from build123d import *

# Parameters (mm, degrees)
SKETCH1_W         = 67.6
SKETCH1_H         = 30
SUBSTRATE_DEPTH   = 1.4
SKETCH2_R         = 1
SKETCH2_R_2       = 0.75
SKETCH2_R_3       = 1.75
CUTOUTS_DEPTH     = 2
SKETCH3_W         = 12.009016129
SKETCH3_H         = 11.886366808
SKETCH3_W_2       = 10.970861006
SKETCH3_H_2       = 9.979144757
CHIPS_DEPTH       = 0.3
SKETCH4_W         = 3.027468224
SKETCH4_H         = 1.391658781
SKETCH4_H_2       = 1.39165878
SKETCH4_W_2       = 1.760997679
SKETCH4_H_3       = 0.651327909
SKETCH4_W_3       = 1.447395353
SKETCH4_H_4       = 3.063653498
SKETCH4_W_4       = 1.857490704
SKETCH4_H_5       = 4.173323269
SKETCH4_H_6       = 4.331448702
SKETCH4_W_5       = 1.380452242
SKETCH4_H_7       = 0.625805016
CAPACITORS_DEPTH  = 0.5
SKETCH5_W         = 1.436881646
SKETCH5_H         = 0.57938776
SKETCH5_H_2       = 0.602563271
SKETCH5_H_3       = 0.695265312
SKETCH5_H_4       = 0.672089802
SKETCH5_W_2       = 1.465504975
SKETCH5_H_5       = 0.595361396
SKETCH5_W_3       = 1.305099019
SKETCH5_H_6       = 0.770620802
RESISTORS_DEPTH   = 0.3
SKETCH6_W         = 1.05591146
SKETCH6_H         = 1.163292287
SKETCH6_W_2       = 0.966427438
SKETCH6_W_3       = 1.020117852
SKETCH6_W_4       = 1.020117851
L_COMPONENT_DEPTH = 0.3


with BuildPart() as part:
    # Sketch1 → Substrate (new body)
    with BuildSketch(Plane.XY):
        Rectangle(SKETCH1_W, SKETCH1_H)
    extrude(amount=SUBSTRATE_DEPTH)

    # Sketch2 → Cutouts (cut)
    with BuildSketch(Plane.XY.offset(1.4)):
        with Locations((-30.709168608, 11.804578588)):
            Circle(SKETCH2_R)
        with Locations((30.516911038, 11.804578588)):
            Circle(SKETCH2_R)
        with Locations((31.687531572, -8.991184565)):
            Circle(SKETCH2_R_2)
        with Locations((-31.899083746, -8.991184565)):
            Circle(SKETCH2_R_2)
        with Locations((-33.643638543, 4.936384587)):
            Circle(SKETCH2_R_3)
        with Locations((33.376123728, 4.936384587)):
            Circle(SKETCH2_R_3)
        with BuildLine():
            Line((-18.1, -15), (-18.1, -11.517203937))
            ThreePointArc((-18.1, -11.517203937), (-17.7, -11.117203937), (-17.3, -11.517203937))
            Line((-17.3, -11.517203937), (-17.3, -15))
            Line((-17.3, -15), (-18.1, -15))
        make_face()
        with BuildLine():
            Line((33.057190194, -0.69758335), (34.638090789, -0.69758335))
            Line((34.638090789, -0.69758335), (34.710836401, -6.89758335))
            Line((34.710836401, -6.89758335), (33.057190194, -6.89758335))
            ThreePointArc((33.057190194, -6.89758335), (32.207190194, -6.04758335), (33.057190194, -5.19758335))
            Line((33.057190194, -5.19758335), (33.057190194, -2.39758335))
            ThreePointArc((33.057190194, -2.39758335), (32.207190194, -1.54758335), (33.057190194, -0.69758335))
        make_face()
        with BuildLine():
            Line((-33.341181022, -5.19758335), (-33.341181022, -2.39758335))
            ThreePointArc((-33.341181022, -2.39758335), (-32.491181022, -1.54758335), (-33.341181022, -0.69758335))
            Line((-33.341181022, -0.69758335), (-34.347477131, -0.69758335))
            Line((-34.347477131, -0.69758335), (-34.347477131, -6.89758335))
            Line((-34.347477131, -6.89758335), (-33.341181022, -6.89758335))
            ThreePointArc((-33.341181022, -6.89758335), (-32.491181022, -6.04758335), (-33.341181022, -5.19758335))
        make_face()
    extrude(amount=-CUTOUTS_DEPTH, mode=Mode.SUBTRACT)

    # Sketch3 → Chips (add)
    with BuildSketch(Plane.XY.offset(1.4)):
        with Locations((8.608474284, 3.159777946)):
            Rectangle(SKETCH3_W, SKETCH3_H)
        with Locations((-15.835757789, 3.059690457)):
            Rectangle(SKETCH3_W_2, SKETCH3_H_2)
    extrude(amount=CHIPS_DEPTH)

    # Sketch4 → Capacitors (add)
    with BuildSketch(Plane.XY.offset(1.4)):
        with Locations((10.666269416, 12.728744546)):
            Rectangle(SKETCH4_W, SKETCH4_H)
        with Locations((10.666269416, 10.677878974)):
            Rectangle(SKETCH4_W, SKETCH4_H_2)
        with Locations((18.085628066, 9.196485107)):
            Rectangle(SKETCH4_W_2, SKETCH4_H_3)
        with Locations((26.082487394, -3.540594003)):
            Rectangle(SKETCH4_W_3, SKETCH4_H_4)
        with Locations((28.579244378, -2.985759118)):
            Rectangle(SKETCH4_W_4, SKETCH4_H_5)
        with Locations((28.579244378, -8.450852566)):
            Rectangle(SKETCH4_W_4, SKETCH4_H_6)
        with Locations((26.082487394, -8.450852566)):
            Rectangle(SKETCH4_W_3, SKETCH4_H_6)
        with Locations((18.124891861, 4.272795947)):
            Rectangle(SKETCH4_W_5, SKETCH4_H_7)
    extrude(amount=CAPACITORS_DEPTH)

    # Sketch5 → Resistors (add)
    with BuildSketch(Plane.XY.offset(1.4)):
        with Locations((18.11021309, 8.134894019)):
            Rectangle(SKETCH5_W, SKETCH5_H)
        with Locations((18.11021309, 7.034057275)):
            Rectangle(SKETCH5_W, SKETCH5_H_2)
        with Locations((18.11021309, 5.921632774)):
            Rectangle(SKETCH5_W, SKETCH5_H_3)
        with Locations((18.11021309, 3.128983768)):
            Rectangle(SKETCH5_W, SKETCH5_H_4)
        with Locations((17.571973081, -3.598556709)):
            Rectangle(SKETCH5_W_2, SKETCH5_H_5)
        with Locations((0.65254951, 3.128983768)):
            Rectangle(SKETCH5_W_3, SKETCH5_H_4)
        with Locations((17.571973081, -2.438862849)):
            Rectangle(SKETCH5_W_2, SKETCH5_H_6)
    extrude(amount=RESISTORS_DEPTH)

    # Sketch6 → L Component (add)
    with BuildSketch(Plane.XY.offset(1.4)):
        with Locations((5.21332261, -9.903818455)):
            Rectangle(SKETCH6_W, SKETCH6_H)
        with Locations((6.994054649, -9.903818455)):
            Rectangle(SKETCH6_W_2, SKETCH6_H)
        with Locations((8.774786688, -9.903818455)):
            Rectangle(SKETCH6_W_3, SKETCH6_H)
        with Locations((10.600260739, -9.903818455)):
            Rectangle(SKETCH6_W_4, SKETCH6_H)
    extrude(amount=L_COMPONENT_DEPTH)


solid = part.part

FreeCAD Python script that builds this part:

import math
import FreeCAD as App
import Part
import Sketcher
from FreeCAD import Vector
Q = App.Units.Quantity

doc = App.newDocument("Part")
body = doc.addObject("PartDesign::Body", "Body")

sketch1 = body.newObject("Sketcher::SketchObject", "Sketch")
sketch1.AttachmentSupport = (doc.getObject("XY_Plane"), [""])
sketch1.MapMode = "FlatFace"
sketch1.addGeometry([
    Part.LineSegment(Vector(-34, 15, 0), Vector(-34, -15, 0)),
    Part.LineSegment(Vector(-34, -15, 0), Vector(34, -15, 0)),
    Part.LineSegment(Vector(34, -15, 0), Vector(34, 15, 0)),
    Part.LineSegment(Vector(34, 15, 0), Vector(-34, 15, 0)),
], False)
sketch1.addConstraint([
    Sketcher.Constraint("Coincident", 0, 2, 1, 1),
    Sketcher.Constraint("Coincident", 1, 2, 2, 1),
    Sketcher.Constraint("Coincident", 2, 2, 3, 1),
    Sketcher.Constraint("Coincident", 3, 2, 0, 1),
    Sketcher.Constraint("Vertical", 0),
    Sketcher.Constraint("Horizontal", 1),
    Sketcher.Constraint("Vertical", 2),
    Sketcher.Constraint("Horizontal", 3),
    Sketcher.Constraint("Symmetric", 0, 2, 2, 2, -1, 1),
    Sketcher.Constraint("DistanceY", 0, 2, 0, 1, Q("30 mm")),
    Sketcher.Constraint("DistanceX", 1, 1, 1, 2, Q("67.6 mm")),
])
pad1 = body.newObject("PartDesign::Pad", "Pad")
pad1.Profile = sketch1
pad1.Length = 1.4

sketch2 = body.newObject("Sketcher::SketchObject", "Sketch001")
sketch2.AttachmentSupport = (doc.getObject("XY_Plane"), [""])
sketch2.MapMode = "FlatFace"
sketch2.AttachmentOffset = App.Placement(Vector(0, 0, 1.4), App.Rotation())
sketch2.addGeometry([
    Part.Circle(Vector(-30.71, 11.8, 0), Vector(0, 0, 1), 1),
    Part.Circle(Vector(30.52, 11.8, 0), Vector(0, 0, 1), 1),
    Part.Circle(Vector(31.69, -8.99, 0), Vector(0, 0, 1), 0.75),
    Part.Circle(Vector(-31.9, -8.99, 0), Vector(0, 0, 1), 0.75),
    Part.Circle(Vector(-33.64, 4.94, 0), Vector(0, 0, 1), 1.75),
    Part.Circle(Vector(33.38, 4.94, 0), Vector(0, 0, 1), 1.75),
    Part.LineSegment(Vector(-18.1, -11.52, 0), Vector(-18.1, -15, 0)),
    Part.LineSegment(Vector(-18.1, -15, 0), Vector(-17.3, -15, 0)),
    Part.LineSegment(Vector(-17.3, -15, 0), Vector(-17.3, -11.52, 0)),
    Part.ArcOfCircle(Part.Circle(Vector(-17.7, -11.52, 0), Vector(0, 0, 1), 0.4), math.radians(0), math.radians(180)),
    Part.LineSegment(Vector(34.64, -0.7, 0), Vector(33.06, -0.7, 0)),
    Part.ArcOfCircle(Part.Circle(Vector(33.06, -1.55, 0), Vector(0, 0, 1), 0.85), math.radians(90), math.radians(270)),
    Part.LineSegment(Vector(33.06, -2.4, 0), Vector(33.06, -5.2, 0)),
    Part.ArcOfCircle(Part.Circle(Vector(33.06, -6.05, 0), Vector(0, 0, 1), 0.85), math.radians(90), math.radians(270)),
    Part.LineSegment(Vector(33.06, -6.9, 0), Vector(34.71, -6.9, 0)),
    Part.LineSegment(Vector(34.71, -6.9, 0), Vector(34.64, -0.7, 0)),
    Part.LineSegment(Vector(-33.34, -5.2, 0), Vector(-33.34, -2.4, 0)),
    Part.ArcOfCircle(Part.Circle(Vector(-33.34, -1.55, 0), Vector(0, 0, 1), 0.85), math.radians(-90), math.radians(90)),
    Part.LineSegment(Vector(-33.34, -0.7, 0), Vector(-34.35, -0.7, 0)),
    Part.LineSegment(Vector(-34.35, -0.7, 0), Vector(-34.35, -6.9, 0)),
    Part.LineSegment(Vector(-34.35, -6.9, 0), Vector(-33.34, -6.9, 0)),
    Part.ArcOfCircle(Part.Circle(Vector(-33.34, -6.05, 0), Vector(0, 0, 1), 0.85), math.radians(-90), math.radians(90)),
], False)
sketch2.addConstraint([
    Sketcher.Constraint("Coincident", 6, 2, 7, 1),
    Sketcher.Constraint("Coincident", 7, 2, 8, 1),
    Sketcher.Constraint("Tangent", 8, 2, 9, 1),
    Sketcher.Constraint("Tangent", 9, 2, 6, 1),
    Sketcher.Constraint("Tangent", 10, 2, 11, 1),
    Sketcher.Constraint("Coincident", 11, 2, 12, 1),
    Sketcher.Constraint("Coincident", 12, 2, 13, 1),
    Sketcher.Constraint("Tangent", 13, 2, 14, 1),
    Sketcher.Constraint("Coincident", 14, 2, 15, 1),
    Sketcher.Constraint("Coincident", 15, 2, 10, 1),
    Sketcher.Constraint("Coincident", 16, 2, 17, 1),
    Sketcher.Constraint("Tangent", 17, 2, 18, 1),
    Sketcher.Constraint("Coincident", 18, 2, 19, 1),
    Sketcher.Constraint("Coincident", 19, 2, 20, 1),
    Sketcher.Constraint("Tangent", 20, 2, 21, 1),
    Sketcher.Constraint("Coincident", 21, 2, 16, 1),
    Sketcher.Constraint("Vertical", 6),
    Sketcher.Constraint("Horizontal", 7),
    Sketcher.Constraint("Vertical", 8),
    Sketcher.Constraint("Horizontal", 10),
    Sketcher.Constraint("Vertical", 12),
    Sketcher.Constraint("Horizontal", 14),
    Sketcher.Constraint("Vertical", 16),
    Sketcher.Constraint("Horizontal", 18),
    Sketcher.Constraint("Vertical", 19),
    Sketcher.Constraint("Horizontal", 20),
    Sketcher.Constraint("Equal", 0, 1),
    Sketcher.Constraint("Equal", 2, 3),
    Sketcher.Constraint("Equal", 4, 5),
    Sketcher.Constraint("Equal", 11, 13),
    Sketcher.Constraint("Equal", 13, 17),
    Sketcher.Constraint("Equal", 17, 21),
    Sketcher.Constraint("Horizontal", 0, 3, 1, 3),
    Sketcher.Constraint("Horizontal", 2, 3, 3, 3),
    Sketcher.Constraint("Horizontal", 4, 3, 5, 3),
    Sketcher.Constraint("Horizontal", 11, 3, 17, 3),
    Sketcher.Constraint("Horizontal", 13, 3, 21, 3),
    Sketcher.Constraint("Vertical", 11, 3, 13, 3),
    Sketcher.Constraint("Vertical", 17, 3, 21, 3),
    Sketcher.Constraint("Vertical", 10, 2, 11, 2),
    Sketcher.Constraint("Vertical", 21, 3, 16, 2),
    Sketcher.Constraint("Diameter", 0, Q("2 mm")),
    Sketcher.Constraint("Diameter", 2, Q("1.5 mm")),
    Sketcher.Constraint("Diameter", 4, Q("3.5 mm")),
    Sketcher.Constraint("Radius", 9, Q("0.4 mm")),
    Sketcher.Constraint("Radius", 11, Q("0.85 mm")),
    Sketcher.Constraint("DistanceY", 12, 2, 12, 1, Q("2.8 mm")),
    Sketcher.Constraint("DistanceY", 6, 2, -1, 1, Q("15 mm")),
    Sketcher.Constraint("DistanceX", 9, 3, -1, 1, Q("17.7 mm")),
    Sketcher.Constraint("DistanceX", 10, 2, 10, 1, Q("1.580901 mm")),
    Sketcher.Constraint("DistanceX", 0, 3, 2, 3, Q("62.3967 mm")),
    Sketcher.Constraint("DistanceY", 2, 3, 11, 3, Q("7.443601 mm")),
    Sketcher.Constraint("DistanceX", 14, 1, 14, 2, Q("1.653646 mm")),
    Sketcher.Constraint("DistanceX", 18, 2, 18, 1, Q("1.006296 mm")),
    Sketcher.Constraint("DistanceY", 6, 2, 6, 1, Q("3.482796 mm")),
    Sketcher.Constraint("DistanceX", 0, 3, -1, 1, Q("30.709169 mm")),
    Sketcher.Constraint("DistanceY", -1, 1, 0, 3, Q("11.804579 mm")),
    Sketcher.Constraint("DistanceX", -1, 1, 1, 3, Q("30.516911 mm")),
    Sketcher.Constraint("DistanceX", 4, 3, -1, 1, Q("33.643639 mm")),
    Sketcher.Constraint("DistanceX", -1, 1, 11, 3, Q("33.05719 mm")),
    Sketcher.Constraint("DistanceX", 17, 3, -1, 1, Q("33.341181 mm")),
    Sketcher.Constraint("DistanceY", 3, 3, 4, 3, Q("13.927569 mm")),
    Sketcher.Constraint("DistanceY", 9, 3, 3, 3, Q("2.526019 mm")),
    Sketcher.Constraint("DistanceX", 3, 3, -1, 1, Q("31.899084 mm")),
    Sketcher.Constraint("DistanceX", -1, 1, 5, 3, Q("33.376124 mm")),
])
pocket1 = body.newObject("PartDesign::Pocket", "Pocket")
pocket1.Profile = sketch2
pocket1.Length = 2

sketch3 = body.newObject("Sketcher::SketchObject", "Sketch002")
sketch3.AttachmentSupport = (doc.getObject("XY_Plane"), [""])
sketch3.MapMode = "FlatFace"
sketch3.AttachmentOffset = App.Placement(Vector(0, 0, 1.4), App.Rotation())
sketch3.addGeometry([
    Part.LineSegment(Vector(3, 9, 0), Vector(3, -3, 0)),
    Part.LineSegment(Vector(3, -3, 0), Vector(15, -3, 0)),
    Part.LineSegment(Vector(15, -3, 0), Vector(15, 9, 0)),
    Part.LineSegment(Vector(15, 9, 0), Vector(3, 9, 0)),
    Part.LineSegment(Vector(-21, 8, 0), Vector(-21, -2, 0)),
    Part.LineSegment(Vector(-21, -2, 0), Vector(-10, -2, 0)),
    Part.LineSegment(Vector(-10, -2, 0), Vector(-10, 8, 0)),
    Part.LineSegment(Vector(-10, 8, 0), Vector(-21, 8, 0)),
], False)
sketch3.addConstraint([
    Sketcher.Constraint("Coincident", 0, 2, 1, 1),
    Sketcher.Constraint("Coincident", 1, 2, 2, 1),
    Sketcher.Constraint("Coincident", 2, 2, 3, 1),
    Sketcher.Constraint("Coincident", 3, 2, 0, 1),
    Sketcher.Constraint("Coincident", 4, 2, 5, 1),
    Sketcher.Constraint("Coincident", 5, 2, 6, 1),
    Sketcher.Constraint("Coincident", 6, 2, 7, 1),
    Sketcher.Constraint("Coincident", 7, 2, 4, 1),
    Sketcher.Constraint("Vertical", 0),
    Sketcher.Constraint("Horizontal", 1),
    Sketcher.Constraint("Vertical", 2),
    Sketcher.Constraint("Horizontal", 3),
    Sketcher.Constraint("Vertical", 4),
    Sketcher.Constraint("Horizontal", 5),
    Sketcher.Constraint("Vertical", 6),
    Sketcher.Constraint("Horizontal", 7),
    Sketcher.Constraint("DistanceX", 5, 1, 5, 2, Q("10.970861 mm")),
    Sketcher.Constraint("DistanceY", 6, 2, 3, 2, Q("1.053699 mm")),
    Sketcher.Constraint("DistanceX", 1, 1, 1, 2, Q("12.009016 mm")),
    Sketcher.Constraint("DistanceY", 0, 2, 0, 1, Q("11.886367 mm")),
    Sketcher.Constraint("DistanceY", 4, 2, 4, 1, Q("9.979145 mm")),
    Sketcher.Constraint("DistanceY", -1, 1, 2, 2, Q("9.102961 mm")),
    Sketcher.Constraint("DistanceX", 4, 2, -1, 1, Q("21.321188 mm")),
    Sketcher.Constraint("DistanceX", 4, 2, 1, 2, Q("35.934171 mm")),
])
pad2 = body.newObject("PartDesign::Pad", "Pad001")
pad2.Profile = sketch3
pad2.Length = 0.3

sketch4 = body.newObject("Sketcher::SketchObject", "Sketch003")
sketch4.AttachmentSupport = (doc.getObject("XY_Plane"), [""])
sketch4.MapMode = "FlatFace"
sketch4.AttachmentOffset = App.Placement(Vector(0, 0, 1.4), App.Rotation())
sketch4.addGeometry([
    Part.LineSegment(Vector(9.2, 13.4, 0), Vector(9.2, 12, 0)),
    Part.LineSegment(Vector(9.2, 12, 0), Vector(12.2, 12, 0)),
    Part.LineSegment(Vector(12.2, 12, 0), Vector(12.2, 13.4, 0)),
    Part.LineSegment(Vector(12.2, 13.4, 0), Vector(9.2, 13.4, 0)),
    Part.LineSegment(Vector(9.2, 11.4, 0), Vector(9.2, 10, 0)),
    Part.LineSegment(Vector(9.2, 10, 0), Vector(12.2, 10, 0)),
    Part.LineSegment(Vector(12.2, 10, 0), Vector(12.2, 11.4, 0)),
    Part.LineSegment(Vector(12.2, 11.4, 0), Vector(9.2, 11.4, 0)),
    Part.LineSegment(Vector(17.2, 9.5, 0), Vector(17.2, 8.9, 0)),
    Part.LineSegment(Vector(17.2, 8.9, 0), Vector(19, 8.9, 0)),
    Part.LineSegment(Vector(19, 8.9, 0), Vector(19, 9.5, 0)),
    Part.LineSegment(Vector(19, 9.5, 0), Vector(17.2, 9.5, 0)),
    Part.LineSegment(Vector(25.4, -2, 0), Vector(25.4, -5.1, 0)),
    Part.LineSegment(Vector(25.4, -5.1, 0), Vector(26.8, -5.1, 0)),
    Part.LineSegment(Vector(26.8, -5.1, 0), Vector(26.8, -2, 0)),
    Part.LineSegment(Vector(26.8, -2, 0), Vector(25.4, -2, 0)),
    Part.LineSegment(Vector(27.7, -0.9, 0), Vector(27.7, -5.1, 0)),
    Part.LineSegment(Vector(27.7, -5.1, 0), Vector(29.5, -5.1, 0)),
    Part.LineSegment(Vector(29.5, -5.1, 0), Vector(29.5, -0.9, 0)),
    Part.LineSegment(Vector(29.5, -0.9, 0), Vector(27.7, -0.9, 0)),
    Part.LineSegment(Vector(27.7, -6.3, 0), Vector(27.7, -10.6, 0)),
    Part.LineSegment(Vector(27.7, -10.6, 0), Vector(29.5, -10.6, 0)),
    Part.LineSegment(Vector(29.5, -10.6, 0), Vector(29.5, -6.3, 0)),
    Part.LineSegment(Vector(29.5, -6.3, 0), Vector(27.7, -6.3, 0)),
    Part.LineSegment(Vector(25.4, -6.3, 0), Vector(25.4, -10.6, 0)),
    Part.LineSegment(Vector(25.4, -10.6, 0), Vector(26.8, -10.6, 0)),
    Part.LineSegment(Vector(26.8, -10.6, 0), Vector(26.8, -6.3, 0)),
    Part.LineSegment(Vector(26.8, -6.3, 0), Vector(25.4, -6.3, 0)),
    Part.LineSegment(Vector(17.4, 4.6, 0), Vector(17.4, 4, 0)),
    Part.LineSegment(Vector(17.4, 4, 0), Vector(18.8, 4, 0)),
    Part.LineSegment(Vector(18.8, 4, 0), Vector(18.8, 4.6, 0)),
    Part.LineSegment(Vector(18.8, 4.6, 0), Vector(17.4, 4.6, 0)),
], False)
sketch4.addConstraint([
    Sketcher.Constraint("Coincident", 0, 2, 1, 1),
    Sketcher.Constraint("Coincident", 1, 2, 2, 1),
    Sketcher.Constraint("Coincident", 2, 2, 3, 1),
    Sketcher.Constraint("Coincident", 3, 2, 0, 1),
    Sketcher.Constraint("Coincident", 4, 2, 5, 1),
    Sketcher.Constraint("Coincident", 5, 2, 6, 1),
    Sketcher.Constraint("Coincident", 6, 2, 7, 1),
    Sketcher.Constraint("Coincident", 7, 2, 4, 1),
    Sketcher.Constraint("Coincident", 8, 2, 9, 1),
    Sketcher.Constraint("Coincident", 9, 2, 10, 1),
    Sketcher.Constraint("Coincident", 10, 2, 11, 1),
    Sketcher.Constraint("Coincident", 11, 2, 8, 1),
    Sketcher.Constraint("Coincident", 12, 2, 13, 1),
    Sketcher.Constraint("Coincident", 13, 2, 14, 1),
    Sketcher.Constraint("Coincident", 14, 2, 15, 1),
    Sketcher.Constraint("Coincident", 15, 2, 12, 1),
    Sketcher.Constraint("Coincident", 16, 2, 17, 1),
    Sketcher.Constraint("Coincident", 17, 2, 18, 1),
    Sketcher.Constraint("Coincident", 18, 2, 19, 1),
    Sketcher.Constraint("Coincident", 19, 2, 16, 1),
    Sketcher.Constraint("Coincident", 20, 2, 21, 1),
    Sketcher.Constraint("Coincident", 21, 2, 22, 1),
    Sketcher.Constraint("Coincident", 22, 2, 23, 1),
    Sketcher.Constraint("Coincident", 23, 2, 20, 1),
    Sketcher.Constraint("Coincident", 24, 2, 25, 1),
    Sketcher.Constraint("Coincident", 25, 2, 26, 1),
    Sketcher.Constraint("Coincident", 26, 2, 27, 1),
    Sketcher.Constraint("Coincident", 27, 2, 24, 1),
    Sketcher.Constraint("Coincident", 28, 2, 29, 1),
    Sketcher.Constraint("Coincident", 29, 2, 30, 1),
    Sketcher.Constraint("Coincident", 30, 2, 31, 1),
    Sketcher.Constraint("Coincident", 31, 2, 28, 1),
    Sketcher.Constraint("Vertical", 0),
    Sketcher.Constraint("Horizontal", 1),
    Sketcher.Constraint("Vertical", 2),
    Sketcher.Constraint("Horizontal", 3),
    Sketcher.Constraint("Vertical", 4),
    Sketcher.Constraint("Horizontal", 5),
    Sketcher.Constraint("Vertical", 6),
    Sketcher.Constraint("Horizontal", 7),
    Sketcher.Constraint("Vertical", 8),
    Sketcher.Constraint("Horizontal", 9),
    Sketcher.Constraint("Vertical", 10),
    Sketcher.Constraint("Horizontal", 11),
    Sketcher.Constraint("Vertical", 12),
    Sketcher.Constraint("Horizontal", 13),
    Sketcher.Constraint("Vertical", 14),
    Sketcher.Constraint("Horizontal", 15),
    Sketcher.Constraint("Vertical", 16),
    Sketcher.Constraint("Horizontal", 17),
    Sketcher.Constraint("Vertical", 18),
    Sketcher.Constraint("Horizontal", 19),
    Sketcher.Constraint("Vertical", 20),
    Sketcher.Constraint("Horizontal", 21),
    Sketcher.Constraint("Vertical", 22),
    Sketcher.Constraint("Horizontal", 23),
    Sketcher.Constraint("Vertical", 24),
    Sketcher.Constraint("Horizontal", 25),
    Sketcher.Constraint("Vertical", 26),
    Sketcher.Constraint("Horizontal", 27),
    Sketcher.Constraint("Vertical", 28),
    Sketcher.Constraint("Horizontal", 29),
    Sketcher.Constraint("Vertical", 30),
    Sketcher.Constraint("Horizontal", 31),
    Sketcher.Constraint("Horizontal", 13, 2, 16, 2),
    Sketcher.Constraint("Horizontal", 21, 2, 24, 2),
    Sketcher.Constraint("Horizontal", 23, 2, 26, 2),
    Sketcher.Constraint("Vertical", 3, 2, 4, 2),
    Sketcher.Constraint("Vertical", 2, 2, 5, 2),
    Sketcher.Constraint("Vertical", 19, 2, 20, 2),
    Sketcher.Constraint("Vertical", 18, 2, 21, 2),
    Sketcher.Constraint("Vertical", 15, 2, 24, 2),
    Sketcher.Constraint("Vertical", 14, 2, 25, 2),
    Sketcher.Constraint("Equal", 2, 4),
    Sketcher.Constraint("DistanceX", 1, 1, 1, 2, Q("3.027468 mm")),
    Sketcher.Constraint("DistanceX", 17, 1, 17, 2, Q("1.857491 mm")),
    Sketcher.Constraint("DistanceY", 0, 2, 0, 1, Q("1.391659 mm")),
    Sketcher.Constraint("DistanceY", 20, 2, 20, 1, Q("4.331449 mm")),
    Sketcher.Constraint("DistanceX", -1, 1, 16, 2, Q("27.650499 mm")),
    Sketcher.Constraint("DistanceY", -1, 1, 30, 2, Q("4.585698 mm")),
    Sketcher.Constraint("DistanceY", 10, 2, 5, 2, Q("0.459901 mm")),
    Sketcher.Constraint("DistanceX", 12, 2, 17, 2, Q("4.1492 mm")),
    Sketcher.Constraint("DistanceX", 9, 1, 9, 2, Q("1.760998 mm")),
    Sketcher.Constraint("DistanceX", 13, 1, 13, 2, Q("1.447395 mm")),
    Sketcher.Constraint("DistanceX", 29, 1, 29, 2, Q("1.380452 mm")),
    Sketcher.Constraint("DistanceY", 8, 2, 8, 1, Q("0.651328 mm")),
    Sketcher.Constraint("DistanceY", 12, 2, 12, 1, Q("3.063653 mm")),
    Sketcher.Constraint("DistanceY", 16, 2, 16, 1, Q("4.173323 mm")),
    Sketcher.Constraint("DistanceY", 28, 2, 28, 1, Q("0.625805 mm")),
    Sketcher.Constraint("DistanceY", -1, 1, 4, 2, Q("9.98205 mm")),
    Sketcher.Constraint("DistanceX", -1, 1, 8, 2, Q("17.205129 mm")),
    Sketcher.Constraint("DistanceY", 12, 2, -1, 1, Q("5.072421 mm")),
    Sketcher.Constraint("DistanceY", 22, 2, -1, 1, Q("6.285128 mm")),
    Sketcher.Constraint("DistanceX", 28, 2, 9, 2, Q("1.531461 mm")),
    Sketcher.Constraint("DistanceX", -1, 1, 0, 2, Q("9.152535 mm")),
    Sketcher.Constraint("DistanceY", -1, 1, 0, 2, Q("12.032915 mm")),
])
pad3 = body.newObject("PartDesign::Pad", "Pad002")
pad3.Profile = sketch4
pad3.Length = 0.5

sketch5 = body.newObject("Sketcher::SketchObject", "Sketch004")
sketch5.AttachmentSupport = (doc.getObject("XY_Plane"), [""])
sketch5.MapMode = "FlatFace"
sketch5.AttachmentOffset = App.Placement(Vector(0, 0, 1.4), App.Rotation())
sketch5.addGeometry([
    Part.LineSegment(Vector(17.4, 8.4, 0), Vector(17.4, 7.8, 0)),
    Part.LineSegment(Vector(17.4, 7.8, 0), Vector(18.8, 7.8, 0)),
    Part.LineSegment(Vector(18.8, 7.8, 0), Vector(18.8, 8.4, 0)),
    Part.LineSegment(Vector(18.8, 8.4, 0), Vector(17.4, 8.4, 0)),
    Part.LineSegment(Vector(17.4, 7.3, 0), Vector(17.4, 6.7, 0)),
    Part.LineSegment(Vector(17.4, 6.7, 0), Vector(18.8, 6.7, 0)),
    Part.LineSegment(Vector(18.8, 6.7, 0), Vector(18.8, 7.3, 0)),
    Part.LineSegment(Vector(18.8, 7.3, 0), Vector(17.4, 7.3, 0)),
    Part.LineSegment(Vector(17.4, 6.3, 0), Vector(17.4, 5.6, 0)),
    Part.LineSegment(Vector(17.4, 5.6, 0), Vector(18.8, 5.6, 0)),
    Part.LineSegment(Vector(18.8, 5.6, 0), Vector(18.8, 6.3, 0)),
    Part.LineSegment(Vector(18.8, 6.3, 0), Vector(17.4, 6.3, 0)),
    Part.LineSegment(Vector(17.4, 3.5, 0), Vector(17.4, 2.8, 0)),
    Part.LineSegment(Vector(17.4, 2.8, 0), Vector(18.8, 2.8, 0)),
    Part.LineSegment(Vector(18.8, 2.8, 0), Vector(18.8, 3.5, 0)),
    Part.LineSegment(Vector(18.8, 3.5, 0), Vector(17.4, 3.5, 0)),
    Part.LineSegment(Vector(16.8, -3.3, 0), Vector(16.8, -3.9, 0)),
    Part.LineSegment(Vector(16.8, -3.9, 0), Vector(18.3, -3.9, 0)),
    Part.LineSegment(Vector(18.3, -3.9, 0), Vector(18.3, -3.3, 0)),
    Part.LineSegment(Vector(18.3, -3.3, 0), Vector(16.8, -3.3, 0)),
    Part.LineSegment(Vector(0, 3.5, 0), Vector(0, 2.8, 0)),
    Part.LineSegment(Vector(0, 2.8, 0), Vector(1.3, 2.8, 0)),
    Part.LineSegment(Vector(1.3, 2.8, 0), Vector(1.3, 3.5, 0)),
    Part.LineSegment(Vector(1.3, 3.5, 0), Vector(0, 3.5, 0)),
    Part.LineSegment(Vector(16.8, -2.1, 0), Vector(16.8, -2.8, 0)),
    Part.LineSegment(Vector(16.8, -2.8, 0), Vector(18.3, -2.8, 0)),
    Part.LineSegment(Vector(18.3, -2.8, 0), Vector(18.3, -2.1, 0)),
    Part.LineSegment(Vector(18.3, -2.1, 0), Vector(16.8, -2.1, 0)),
], False)
sketch5.addConstraint([
    Sketcher.Constraint("Coincident", 0, 2, 1, 1),
    Sketcher.Constraint("Coincident", 1, 2, 2, 1),
    Sketcher.Constraint("Coincident", 2, 2, 3, 1),
    Sketcher.Constraint("Coincident", 3, 2, 0, 1),
    Sketcher.Constraint("Coincident", 4, 2, 5, 1),
    Sketcher.Constraint("Coincident", 5, 2, 6, 1),
    Sketcher.Constraint("Coincident", 6, 2, 7, 1),
    Sketcher.Constraint("Coincident", 7, 2, 4, 1),
    Sketcher.Constraint("Coincident", 8, 2, 9, 1),
    Sketcher.Constraint("Coincident", 9, 2, 10, 1),
    Sketcher.Constraint("Coincident", 10, 2, 11, 1),
    Sketcher.Constraint("Coincident", 11, 2, 8, 1),
    Sketcher.Constraint("Coincident", 12, 2, 13, 1),
    Sketcher.Constraint("Coincident", 13, 2, 14, 1),
    Sketcher.Constraint("Coincident", 14, 2, 15, 1),
    Sketcher.Constraint("Coincident", 15, 2, 12, 1),
    Sketcher.Constraint("Coincident", 16, 2, 17, 1),
    Sketcher.Constraint("Coincident", 17, 2, 18, 1),
    Sketcher.Constraint("Coincident", 18, 2, 19, 1),
    Sketcher.Constraint("Coincident", 19, 2, 16, 1),
    Sketcher.Constraint("Coincident", 20, 2, 21, 1),
    Sketcher.Constraint("Coincident", 21, 2, 22, 1),
    Sketcher.Constraint("Coincident", 22, 2, 23, 1),
    Sketcher.Constraint("Coincident", 23, 2, 20, 1),
    Sketcher.Constraint("Coincident", 24, 2, 25, 1),
    Sketcher.Constraint("Coincident", 25, 2, 26, 1),
    Sketcher.Constraint("Coincident", 26, 2, 27, 1),
    Sketcher.Constraint("Coincident", 27, 2, 24, 1),
    Sketcher.Constraint("Vertical", 0),
    Sketcher.Constraint("Horizontal", 1),
    Sketcher.Constraint("Vertical", 2),
    Sketcher.Constraint("Horizontal", 3),
    Sketcher.Constraint("Vertical", 4),
    Sketcher.Constraint("Horizontal", 5),
    Sketcher.Constraint("Vertical", 6),
    Sketcher.Constraint("Horizontal", 7),
    Sketcher.Constraint("Vertical", 8),
    Sketcher.Constraint("Horizontal", 9),
    Sketcher.Constraint("Vertical", 10),
    Sketcher.Constraint("Horizontal", 11),
    Sketcher.Constraint("Vertical", 12),
    Sketcher.Constraint("Horizontal", 13),
    Sketcher.Constraint("Vertical", 14),
    Sketcher.Constraint("Horizontal", 15),
    Sketcher.Constraint("Vertical", 16),
    Sketcher.Constraint("Horizontal", 17),
    Sketcher.Constraint("Vertical", 18),
    Sketcher.Constraint("Horizontal", 19),
    Sketcher.Constraint("Vertical", 20),
    Sketcher.Constraint("Horizontal", 21),
    Sketcher.Constraint("Vertical", 22),
    Sketcher.Constraint("Horizontal", 23),
    Sketcher.Constraint("Vertical", 24),
    Sketcher.Constraint("Horizontal", 25),
    Sketcher.Constraint("Vertical", 26),
    Sketcher.Constraint("Horizontal", 27),
    Sketcher.Constraint("PointOnObject", 20, 2, -2),
    Sketcher.Constraint("Horizontal", 13, 2, 20, 2),
    Sketcher.Constraint("Horizontal", 15, 2, 22, 2),
    Sketcher.Constraint("Vertical", 3, 2, 4, 2),
    Sketcher.Constraint("Vertical", 2, 2, 5, 2),
    Sketcher.Constraint("Vertical", 7, 2, 8, 2),
    Sketcher.Constraint("Vertical", 6, 2, 9, 2),
    Sketcher.Constraint("Vertical", 11, 2, 12, 2),
    Sketcher.Constraint("Vertical", 10, 2, 13, 2),
    Sketcher.Constraint("Vertical", 19, 2, 24, 2),
    Sketcher.Constraint("Vertical", 18, 2, 25, 2),
    Sketcher.Constraint("DistanceX", 21, 1, 21, 2, Q("1.305099 mm")),
    Sketcher.Constraint("DistanceY", -1, 1, 8, 2, Q("5.574 mm")),
    Sketcher.Constraint("DistanceX", 1, 1, 1, 2, Q("1.436882 mm")),
    Sketcher.Constraint("DistanceY", 12, 2, 12, 1, Q("0.67209 mm")),
    Sketcher.Constraint("DistanceY", 16, 2, 16, 1, Q("0.595361 mm")),
    Sketcher.Constraint("DistanceY", 24, 2, 24, 1, Q("0.770621 mm")),
    Sketcher.Constraint("DistanceY", -1, 1, 0, 2, Q("7.8452 mm")),
    Sketcher.Constraint("DistanceX", 17, 1, 17, 2, Q("1.465505 mm")),
    Sketcher.Constraint("DistanceY", 0, 2, 0, 1, Q("0.579388 mm")),
    Sketcher.Constraint("DistanceY", 4, 2, 4, 1, Q("0.602563 mm")),
    Sketcher.Constraint("DistanceY", 8, 2, 8, 1, Q("0.695265 mm")),
    Sketcher.Constraint("DistanceY", -1, 1, 6, 2, Q("7.335339 mm")),
    Sketcher.Constraint("DistanceY", -1, 1, 12, 2, Q("2.792939 mm")),
    Sketcher.Constraint("DistanceX", -1, 1, 16, 2, Q("16.839221 mm")),
    Sketcher.Constraint("DistanceX", 16, 2, 12, 2, Q("0.552552 mm")),
    Sketcher.Constraint("DistanceY", 16, 2, -1, 1, Q("3.896237 mm")),
    Sketcher.Constraint("DistanceY", 24, 2, -1, 1, Q("2.824173 mm")),
])
pad4 = body.newObject("PartDesign::Pad", "Pad003")
pad4.Profile = sketch5
pad4.Length = 0.3

sketch6 = body.newObject("Sketcher::SketchObject", "Sketch005")
sketch6.AttachmentSupport = (doc.getObject("XY_Plane"), [""])
sketch6.MapMode = "FlatFace"
sketch6.AttachmentOffset = App.Placement(Vector(0, 0, 1.4), App.Rotation())
sketch6.addGeometry([
    Part.LineSegment(Vector(4.7, -9.3, 0), Vector(4.7, -10.5, 0)),
    Part.LineSegment(Vector(4.7, -10.5, 0), Vector(5.7, -10.5, 0)),
    Part.LineSegment(Vector(5.7, -10.5, 0), Vector(5.7, -9.3, 0)),
    Part.LineSegment(Vector(5.7, -9.3, 0), Vector(4.7, -9.3, 0)),
    Part.LineSegment(Vector(6.5, -9.3, 0), Vector(6.5, -10.5, 0)),
    Part.LineSegment(Vector(6.5, -10.5, 0), Vector(7.5, -10.5, 0)),
    Part.LineSegment(Vector(7.5, -10.5, 0), Vector(7.5, -9.3, 0)),
    Part.LineSegment(Vector(7.5, -9.3, 0), Vector(6.5, -9.3, 0)),
    Part.LineSegment(Vector(8.3, -9.3, 0), Vector(8.3, -10.5, 0)),
    Part.LineSegment(Vector(8.3, -10.5, 0), Vector(9.3, -10.5, 0)),
    Part.LineSegment(Vector(9.3, -10.5, 0), Vector(9.3, -9.3, 0)),
    Part.LineSegment(Vector(9.3, -9.3, 0), Vector(8.3, -9.3, 0)),
    Part.LineSegment(Vector(10.1, -9.3, 0), Vector(10.1, -10.5, 0)),
    Part.LineSegment(Vector(10.1, -10.5, 0), Vector(11.1, -10.5, 0)),
    Part.LineSegment(Vector(11.1, -10.5, 0), Vector(11.1, -9.3, 0)),
    Part.LineSegment(Vector(11.1, -9.3, 0), Vector(10.1, -9.3, 0)),
], False)
sketch6.addConstraint([
    Sketcher.Constraint("Coincident", 0, 2, 1, 1),
    Sketcher.Constraint("Coincident", 1, 2, 2, 1),
    Sketcher.Constraint("Coincident", 2, 2, 3, 1),
    Sketcher.Constraint("Coincident", 3, 2, 0, 1),
    Sketcher.Constraint("Coincident", 4, 2, 5, 1),
    Sketcher.Constraint("Coincident", 5, 2, 6, 1),
    Sketcher.Constraint("Coincident", 6, 2, 7, 1),
    Sketcher.Constraint("Coincident", 7, 2, 4, 1),
    Sketcher.Constraint("Coincident", 8, 2, 9, 1),
    Sketcher.Constraint("Coincident", 9, 2, 10, 1),
    Sketcher.Constraint("Coincident", 10, 2, 11, 1),
    Sketcher.Constraint("Coincident", 11, 2, 8, 1),
    Sketcher.Constraint("Coincident", 12, 2, 13, 1),
    Sketcher.Constraint("Coincident", 13, 2, 14, 1),
    Sketcher.Constraint("Coincident", 14, 2, 15, 1),
    Sketcher.Constraint("Coincident", 15, 2, 12, 1),
    Sketcher.Constraint("Vertical", 0),
    Sketcher.Constraint("Horizontal", 1),
    Sketcher.Constraint("Vertical", 2),
    Sketcher.Constraint("Horizontal", 3),
    Sketcher.Constraint("Vertical", 4),
    Sketcher.Constraint("Horizontal", 5),
    Sketcher.Constraint("Vertical", 6),
    Sketcher.Constraint("Horizontal", 7),
    Sketcher.Constraint("Vertical", 8),
    Sketcher.Constraint("Horizontal", 9),
    Sketcher.Constraint("Vertical", 10),
    Sketcher.Constraint("Horizontal", 11),
    Sketcher.Constraint("Vertical", 12),
    Sketcher.Constraint("Horizontal", 13),
    Sketcher.Constraint("Vertical", 14),
    Sketcher.Constraint("Horizontal", 15),
    Sketcher.Constraint("Horizontal", 1, 2, 4, 2),
    Sketcher.Constraint("Horizontal", 3, 2, 6, 2),
    Sketcher.Constraint("Horizontal", 5, 2, 8, 2),
    Sketcher.Constraint("Horizontal", 7, 2, 10, 2),
    Sketcher.Constraint("Horizontal", 9, 2, 12, 2),
    Sketcher.Constraint("Horizontal", 11, 2, 14, 2),
    Sketcher.Constraint("Equal", 11, 13),
    Sketcher.Constraint("DistanceX", 1, 1, 1, 2, Q("1.055911 mm")),
    Sketcher.Constraint("DistanceX", -1, 1, 12, 2, Q("10.090202 mm")),
    Sketcher.Constraint("DistanceX", 0, 2, 5, 2, Q("2.791901 mm")),
    Sketcher.Constraint("DistanceX", 5, 1, 5, 2, Q("0.966427 mm")),
    Sketcher.Constraint("DistanceX", 9, 1, 9, 2, Q("1.020118 mm")),
    Sketcher.Constraint("DistanceY", 0, 2, 0, 1, Q("1.163292 mm")),
    Sketcher.Constraint("DistanceX", -1, 1, 1, 2, Q("5.741278 mm")),
    Sketcher.Constraint("DistanceX", 5, 2, 8, 2, Q("0.787459 mm")),
    Sketcher.Constraint("DistanceY", 0, 2, -1, 1, Q("10.485465 mm")),
])
pad5 = body.newObject("PartDesign::Pad", "Pad004")
pad5.Profile = sketch6
pad5.Length = 0.3

doc.recompute()
